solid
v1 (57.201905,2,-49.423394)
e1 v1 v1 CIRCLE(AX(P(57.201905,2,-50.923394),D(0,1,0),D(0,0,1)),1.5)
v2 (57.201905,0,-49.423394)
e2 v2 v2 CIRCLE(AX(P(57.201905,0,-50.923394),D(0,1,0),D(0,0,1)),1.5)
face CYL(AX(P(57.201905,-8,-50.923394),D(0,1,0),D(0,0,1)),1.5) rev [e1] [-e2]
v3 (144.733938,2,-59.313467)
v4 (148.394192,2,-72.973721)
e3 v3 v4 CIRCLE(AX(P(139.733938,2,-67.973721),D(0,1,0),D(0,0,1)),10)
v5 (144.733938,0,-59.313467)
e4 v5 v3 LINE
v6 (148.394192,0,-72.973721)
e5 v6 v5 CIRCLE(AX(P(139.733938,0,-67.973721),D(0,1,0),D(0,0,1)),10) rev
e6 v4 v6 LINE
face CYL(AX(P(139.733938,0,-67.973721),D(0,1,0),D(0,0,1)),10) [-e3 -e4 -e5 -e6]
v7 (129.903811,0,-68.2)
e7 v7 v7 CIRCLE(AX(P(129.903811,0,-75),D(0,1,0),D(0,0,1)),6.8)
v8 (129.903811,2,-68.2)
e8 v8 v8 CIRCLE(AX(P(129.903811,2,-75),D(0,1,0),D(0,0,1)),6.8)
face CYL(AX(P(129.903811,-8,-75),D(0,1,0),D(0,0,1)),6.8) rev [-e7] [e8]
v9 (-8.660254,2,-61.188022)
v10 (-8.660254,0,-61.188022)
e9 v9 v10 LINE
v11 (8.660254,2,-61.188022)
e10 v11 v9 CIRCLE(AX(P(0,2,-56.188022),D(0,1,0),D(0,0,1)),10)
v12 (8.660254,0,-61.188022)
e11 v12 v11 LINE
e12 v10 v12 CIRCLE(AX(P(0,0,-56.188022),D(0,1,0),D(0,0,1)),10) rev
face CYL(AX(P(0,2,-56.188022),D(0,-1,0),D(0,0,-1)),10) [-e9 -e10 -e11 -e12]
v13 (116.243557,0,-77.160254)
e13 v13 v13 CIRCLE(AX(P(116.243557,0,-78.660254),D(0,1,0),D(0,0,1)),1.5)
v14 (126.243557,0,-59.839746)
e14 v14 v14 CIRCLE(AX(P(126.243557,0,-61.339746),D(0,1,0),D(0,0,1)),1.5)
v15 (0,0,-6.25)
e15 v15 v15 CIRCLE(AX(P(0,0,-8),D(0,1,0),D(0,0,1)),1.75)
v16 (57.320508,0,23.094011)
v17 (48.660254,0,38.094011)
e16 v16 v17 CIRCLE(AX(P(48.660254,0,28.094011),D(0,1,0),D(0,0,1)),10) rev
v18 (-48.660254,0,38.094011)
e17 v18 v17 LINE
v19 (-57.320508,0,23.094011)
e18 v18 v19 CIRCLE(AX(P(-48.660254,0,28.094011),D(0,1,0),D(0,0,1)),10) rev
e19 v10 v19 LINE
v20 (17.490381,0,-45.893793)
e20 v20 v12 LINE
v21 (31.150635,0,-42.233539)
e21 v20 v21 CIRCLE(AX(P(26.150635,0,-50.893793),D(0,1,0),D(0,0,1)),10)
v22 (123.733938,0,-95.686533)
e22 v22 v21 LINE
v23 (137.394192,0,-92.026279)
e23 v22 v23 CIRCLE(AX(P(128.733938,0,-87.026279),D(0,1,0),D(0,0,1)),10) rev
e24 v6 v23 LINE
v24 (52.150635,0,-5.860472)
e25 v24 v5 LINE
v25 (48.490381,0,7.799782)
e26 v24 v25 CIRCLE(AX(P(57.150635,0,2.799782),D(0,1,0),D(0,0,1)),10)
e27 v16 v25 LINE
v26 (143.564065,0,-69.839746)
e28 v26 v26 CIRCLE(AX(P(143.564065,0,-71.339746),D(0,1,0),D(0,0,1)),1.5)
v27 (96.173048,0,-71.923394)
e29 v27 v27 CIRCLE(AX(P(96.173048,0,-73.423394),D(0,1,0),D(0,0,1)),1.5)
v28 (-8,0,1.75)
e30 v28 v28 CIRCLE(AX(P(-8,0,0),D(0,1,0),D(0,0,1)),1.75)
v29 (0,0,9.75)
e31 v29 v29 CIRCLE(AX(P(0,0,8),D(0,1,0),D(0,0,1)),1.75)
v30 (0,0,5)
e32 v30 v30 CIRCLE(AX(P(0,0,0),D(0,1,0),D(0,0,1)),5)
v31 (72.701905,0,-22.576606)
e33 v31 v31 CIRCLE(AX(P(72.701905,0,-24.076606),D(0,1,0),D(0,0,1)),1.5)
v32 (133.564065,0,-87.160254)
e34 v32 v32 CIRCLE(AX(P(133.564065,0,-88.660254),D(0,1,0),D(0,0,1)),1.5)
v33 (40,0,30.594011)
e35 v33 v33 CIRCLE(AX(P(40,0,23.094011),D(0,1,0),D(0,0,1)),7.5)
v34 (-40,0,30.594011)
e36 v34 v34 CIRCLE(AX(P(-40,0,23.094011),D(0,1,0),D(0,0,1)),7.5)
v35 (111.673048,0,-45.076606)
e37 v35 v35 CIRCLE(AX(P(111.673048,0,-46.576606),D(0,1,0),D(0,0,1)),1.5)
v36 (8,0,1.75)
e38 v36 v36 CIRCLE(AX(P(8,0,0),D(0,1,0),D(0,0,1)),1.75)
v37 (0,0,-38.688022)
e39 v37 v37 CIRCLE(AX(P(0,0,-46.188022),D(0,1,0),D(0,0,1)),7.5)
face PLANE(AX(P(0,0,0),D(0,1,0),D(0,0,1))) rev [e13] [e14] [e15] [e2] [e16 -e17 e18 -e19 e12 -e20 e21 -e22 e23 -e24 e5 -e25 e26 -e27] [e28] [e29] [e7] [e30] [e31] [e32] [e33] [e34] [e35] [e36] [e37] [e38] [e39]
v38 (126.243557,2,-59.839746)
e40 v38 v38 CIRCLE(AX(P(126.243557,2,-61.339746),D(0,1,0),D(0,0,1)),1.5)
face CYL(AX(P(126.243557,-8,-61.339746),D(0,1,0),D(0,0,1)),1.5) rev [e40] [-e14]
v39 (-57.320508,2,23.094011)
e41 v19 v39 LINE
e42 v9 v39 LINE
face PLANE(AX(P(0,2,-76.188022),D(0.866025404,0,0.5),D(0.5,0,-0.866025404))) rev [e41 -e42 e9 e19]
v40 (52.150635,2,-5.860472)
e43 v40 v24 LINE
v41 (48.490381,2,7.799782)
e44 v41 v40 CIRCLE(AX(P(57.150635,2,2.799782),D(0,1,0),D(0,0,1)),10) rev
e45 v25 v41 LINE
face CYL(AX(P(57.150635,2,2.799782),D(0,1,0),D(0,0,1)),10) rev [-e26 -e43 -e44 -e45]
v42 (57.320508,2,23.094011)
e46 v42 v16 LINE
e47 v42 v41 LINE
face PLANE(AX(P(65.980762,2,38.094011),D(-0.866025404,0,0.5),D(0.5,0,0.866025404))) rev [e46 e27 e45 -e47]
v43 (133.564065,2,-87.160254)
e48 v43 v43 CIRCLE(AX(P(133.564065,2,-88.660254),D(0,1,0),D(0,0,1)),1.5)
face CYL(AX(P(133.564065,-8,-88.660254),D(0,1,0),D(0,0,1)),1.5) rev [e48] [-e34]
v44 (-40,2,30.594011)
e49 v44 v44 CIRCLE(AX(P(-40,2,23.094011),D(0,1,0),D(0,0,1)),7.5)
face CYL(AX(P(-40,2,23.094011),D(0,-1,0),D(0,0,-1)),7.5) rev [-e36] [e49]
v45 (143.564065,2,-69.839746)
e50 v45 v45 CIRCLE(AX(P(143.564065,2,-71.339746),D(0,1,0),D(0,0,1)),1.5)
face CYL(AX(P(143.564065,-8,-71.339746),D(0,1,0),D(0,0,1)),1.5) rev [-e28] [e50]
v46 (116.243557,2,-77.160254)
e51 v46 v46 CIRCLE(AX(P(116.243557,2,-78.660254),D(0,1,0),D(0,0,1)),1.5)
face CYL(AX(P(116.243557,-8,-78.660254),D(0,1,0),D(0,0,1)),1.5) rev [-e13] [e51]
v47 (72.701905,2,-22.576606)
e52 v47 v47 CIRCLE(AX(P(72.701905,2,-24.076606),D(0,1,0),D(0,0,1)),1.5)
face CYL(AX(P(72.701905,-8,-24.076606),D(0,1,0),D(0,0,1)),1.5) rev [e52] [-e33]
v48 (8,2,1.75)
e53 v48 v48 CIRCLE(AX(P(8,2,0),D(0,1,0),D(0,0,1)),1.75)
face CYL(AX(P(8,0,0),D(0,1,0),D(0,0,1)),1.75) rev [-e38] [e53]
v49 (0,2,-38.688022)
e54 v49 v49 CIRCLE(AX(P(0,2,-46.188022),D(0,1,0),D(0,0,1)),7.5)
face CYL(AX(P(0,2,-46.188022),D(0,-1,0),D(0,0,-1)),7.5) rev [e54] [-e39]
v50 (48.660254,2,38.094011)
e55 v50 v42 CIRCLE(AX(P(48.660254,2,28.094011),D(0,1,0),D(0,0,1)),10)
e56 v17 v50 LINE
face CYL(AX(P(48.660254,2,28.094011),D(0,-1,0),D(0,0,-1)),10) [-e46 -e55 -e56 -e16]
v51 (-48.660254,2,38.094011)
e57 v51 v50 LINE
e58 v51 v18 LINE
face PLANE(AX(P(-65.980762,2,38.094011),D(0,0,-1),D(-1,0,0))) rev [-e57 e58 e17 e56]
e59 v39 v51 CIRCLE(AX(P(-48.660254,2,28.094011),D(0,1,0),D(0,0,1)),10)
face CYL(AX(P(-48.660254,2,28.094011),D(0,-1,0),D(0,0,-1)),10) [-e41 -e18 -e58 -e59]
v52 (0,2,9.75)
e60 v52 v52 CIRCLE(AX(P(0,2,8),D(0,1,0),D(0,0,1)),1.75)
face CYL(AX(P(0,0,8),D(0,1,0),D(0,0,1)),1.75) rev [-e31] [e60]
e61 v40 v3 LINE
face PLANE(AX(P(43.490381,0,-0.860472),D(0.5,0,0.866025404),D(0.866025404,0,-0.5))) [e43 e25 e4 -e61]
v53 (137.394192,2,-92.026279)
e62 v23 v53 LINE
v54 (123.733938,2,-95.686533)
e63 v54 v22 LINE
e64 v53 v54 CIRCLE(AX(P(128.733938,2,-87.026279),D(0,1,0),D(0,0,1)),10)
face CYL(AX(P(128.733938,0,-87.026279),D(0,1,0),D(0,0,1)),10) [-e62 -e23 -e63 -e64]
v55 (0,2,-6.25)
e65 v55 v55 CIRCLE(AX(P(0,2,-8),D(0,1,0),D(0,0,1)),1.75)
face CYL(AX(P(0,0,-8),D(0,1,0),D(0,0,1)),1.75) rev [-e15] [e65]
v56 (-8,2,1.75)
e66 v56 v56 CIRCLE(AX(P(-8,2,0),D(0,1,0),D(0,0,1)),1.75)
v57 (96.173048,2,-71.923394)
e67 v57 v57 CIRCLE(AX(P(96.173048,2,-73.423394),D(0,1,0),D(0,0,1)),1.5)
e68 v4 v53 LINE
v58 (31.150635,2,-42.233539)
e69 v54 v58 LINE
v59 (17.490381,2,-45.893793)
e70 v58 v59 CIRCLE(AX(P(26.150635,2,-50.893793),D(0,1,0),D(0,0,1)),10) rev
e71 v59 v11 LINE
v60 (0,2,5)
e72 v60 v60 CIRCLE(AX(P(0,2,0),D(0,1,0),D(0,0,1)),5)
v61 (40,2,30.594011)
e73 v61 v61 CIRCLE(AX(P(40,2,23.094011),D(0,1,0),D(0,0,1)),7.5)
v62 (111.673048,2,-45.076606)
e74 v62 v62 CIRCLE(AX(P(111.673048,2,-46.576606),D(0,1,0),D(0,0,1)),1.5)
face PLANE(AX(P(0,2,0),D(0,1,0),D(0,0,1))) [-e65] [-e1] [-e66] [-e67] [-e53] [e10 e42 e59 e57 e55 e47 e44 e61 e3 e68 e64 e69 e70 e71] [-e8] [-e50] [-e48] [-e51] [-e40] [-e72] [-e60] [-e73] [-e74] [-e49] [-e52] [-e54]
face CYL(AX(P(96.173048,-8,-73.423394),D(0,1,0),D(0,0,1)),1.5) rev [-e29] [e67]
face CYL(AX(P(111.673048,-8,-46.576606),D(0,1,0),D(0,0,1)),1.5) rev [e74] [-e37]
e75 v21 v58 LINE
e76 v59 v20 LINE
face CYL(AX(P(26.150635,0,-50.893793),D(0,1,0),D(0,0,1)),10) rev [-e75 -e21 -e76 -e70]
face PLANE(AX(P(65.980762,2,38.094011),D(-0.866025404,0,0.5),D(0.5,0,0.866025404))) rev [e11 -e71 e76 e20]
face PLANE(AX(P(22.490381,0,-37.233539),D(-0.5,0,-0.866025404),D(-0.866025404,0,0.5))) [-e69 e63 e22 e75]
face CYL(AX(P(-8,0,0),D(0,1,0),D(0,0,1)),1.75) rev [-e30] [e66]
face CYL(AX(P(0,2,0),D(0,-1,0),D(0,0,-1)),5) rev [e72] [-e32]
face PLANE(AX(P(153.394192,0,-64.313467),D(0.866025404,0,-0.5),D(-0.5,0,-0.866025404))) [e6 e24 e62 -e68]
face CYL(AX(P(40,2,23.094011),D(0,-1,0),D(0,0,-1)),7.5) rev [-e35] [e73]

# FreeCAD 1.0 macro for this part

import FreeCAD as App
import Part
import Sketcher
from FreeCAD import Vector
Q = App.Units.Quantity


def edges_at(feature, points):
    """Names of the edges that pass closest to the given points."""
    edges = feature.Shape.Edges
    near = lambda p: min(range(len(edges)), key=lambda i: edges[i].distToShape(Part.Vertex(*p))[0])
    return sorted({f"Edge{near(p) + 1}" for p in points})

doc = App.newDocument("Part")
body = doc.addObject("PartDesign::Body", "Body")

sketch1 = body.newObject("Sketcher::SketchObject", "Sketch")
sketch1.AttachmentSupport = (doc.getObject("XZ_Plane"), [""])
sketch1.MapMode = "FlatFace"
sketch1.addGeometry([
    Part.LineSegment(Vector(0, -76.188022, 0), Vector(-65.980762, 38.094011, 0)),
    Part.LineSegment(Vector(-65.980762, 38.094011, 0), Vector(65.980762, 38.094011, 0)),
    Part.LineSegment(Vector(65.980762, 38.094011, 0), Vector(0, -76.188022, 0)),
    Part.Circle(Vector(-40, 23.094011, 0), Vector(0, 0, 1), 7.5),
    Part.Circle(Vector(40, 23.094011, 0), Vector(0, 0, 1), 7.5),
    Part.Circle(Vector(0, 0, 0), Vector(0, 0, 1), 5),
    Part.Circle(Vector(0, -46.188022, 0), Vector(0, 0, 1), 7.5),
], False)
sketch1.addConstraint([
    Sketcher.Constraint("Coincident", 0, 2, 1, 1),
    Sketcher.Constraint("Coincident", 1, 2, 2, 1),
    Sketcher.Constraint("Coincident", 2, 2, 0, 1),
    Sketcher.Constraint("Horizontal", 1),
    Sketcher.Constraint("Coincident", 5, 3, -1, 1),
    Sketcher.Constraint("Equal", 3, 4),
    Sketcher.Constraint("Equal", 4, 6),
    Sketcher.Constraint("Symmetric", 3, 3, 4, 3, -2),
    Sketcher.Constraint("PointOnObject", 6, 3, -2),
    Sketcher.Constraint("PointOnObject", 2, 2, -2),
    Sketcher.Constraint("Equal", 0, 2),
    Sketcher.Constraint("Diameter", 3, 15.0),
    Sketcher.Constraint("Diameter", 5, 10.0),
    Sketcher.Constraint("Angle", 0, Q("120 deg")),
    Sketcher.Constraint("DistanceX", 3, 3, -1, 1, 40.0),
    Sketcher.Constraint("DistanceY", 3, 3, 0, 2, 15.0),
    Sketcher.Constraint("DistanceY", 2, 2, 6, 3, 30.0),
    Sketcher.Constraint("DistanceX", 1, 1, 1, 2, 131.961524),
    Sketcher.Constraint("DistanceY", -1, 1, 3, 3, 23.094011),
])
pad1 = body.newObject("PartDesign::Pad", "Pad")
pad1.Profile = sketch1
pad1.Length = 2
pad1.Reversed = True

sketch2 = body.newObject("Sketcher::SketchObject", "Sketch001")
sketch2.AttachmentSupport = (doc.getObject("XZ_Plane"), [""])
sketch2.MapMode = "FlatFace"
sketch2.AttachmentOffset = App.Placement(Vector(0, 0, -2), App.Rotation())
sketch2.addGeometry([
    Part.LineSegment(Vector(22.490381, -37.233539, 0), Vector(43.490381, -0.860472, 0)),
    Part.LineSegment(Vector(43.490381, -0.860472, 0), Vector(153.394192, -64.313467, 0)),
    Part.LineSegment(Vector(153.394192, -64.313467, 0), Vector(132.394192, -100.686533, 0)),
    Part.LineSegment(Vector(132.394192, -100.686533, 0), Vector(22.490381, -37.233539, 0)),
], False)
sketch2.addConstraint([
    Sketcher.Constraint("Coincident", 0, 2, 1, 1),
    Sketcher.Constraint("Coincident", 1, 2, 2, 1),
    Sketcher.Constraint("Coincident", 2, 2, 3, 1),
    Sketcher.Constraint("Coincident", 3, 2, 0, 1),
    Sketcher.Constraint("Perpendicular", 0, 1),
    Sketcher.Constraint("Perpendicular", 1, 2),
    Sketcher.Constraint("Perpendicular", 2, 3),
    Sketcher.Constraint("Angle", 0, Q("60 deg")),
    Sketcher.Constraint("Distance", 0, 42.0),
    Sketcher.Constraint("Distance", 1, 126.905989),
    Sketcher.Constraint("DistanceX", -1, 1, 0, 2, 43.490381),
    Sketcher.Constraint("DistanceY", 0, 2, -1, 1, 0.860472),
])
pad2 = body.newObject("PartDesign::Pad", "Pad001")
pad2.Profile = sketch2
pad2.Length = 2
doc.recompute()

fillet = body.newObject("PartDesign::Fillet", "Fillet")
fillet.Base = (pad2, edges_at(pad2, [
    (153.394, 1, -64.313),
    (43.49, 1, -0.86),
    (22.49, 1, -37.234),
    (132.394, 1, -100.687),
    (65.981, 1, 38.094),
    (-65.981, 1, 38.094),
    (0, 1, -76.188),
]))
fillet.Radius = 10

sketch3 = body.newObject("Sketcher::SketchObject", "Sketch002")
sketch3.AttachmentSupport = (doc.getObject("XZ_Plane"), [""])
sketch3.MapMode = "FlatFace"
sketch3.AttachmentOffset = App.Placement(Vector(0, 0, -2), App.Rotation())
sketch3.addGeometry(Part.Circle(Vector(129.903811, -75, 0), Vector(0, 0, 1), 6.8), False)
sketch3.addConstraint([
    Sketcher.Constraint("Diameter", 0, 13.6),
    Sketcher.Constraint("DistanceY", 0, 3, -1, 1, 75.0),
    Sketcher.Constraint("DistanceX", -1, 1, 0, 3, 129.903811),
])
pocket1 = body.newObject("PartDesign::Pocket", "Pocket")
pocket1.Profile = sketch3
pocket1.Length = 10
pocket1.Reversed = True

sketch4 = body.newObject("Sketcher::SketchObject", "Sketch003")
sketch4.AttachmentSupport = (doc.getObject("XZ_Plane"), [""])
sketch4.MapMode = "FlatFace"
sketch4.AttachmentOffset = App.Placement(Vector(0, 0, -2), App.Rotation())
sketch4.addGeometry([
    Part.Circle(Vector(133.564065, -88.660254, 0), Vector(0, 0, 1), 1.5),
    Part.Circle(Vector(116.243557, -78.660254, 0), Vector(0, 0, 1), 1.5),
    Part.Circle(Vector(126.243557, -61.339746, 0), Vector(0, 0, 1), 1.5),
    Part.Circle(Vector(143.564065, -71.339746, 0), Vector(0, 0, 1), 1.5),
], False)
sketch4.addConstraint([
    Sketcher.Constraint("Equal", 0, 1),
    Sketcher.Constraint("Equal", 1, 2),
    Sketcher.Constraint("Equal", 2, 3),
    Sketcher.Constraint("Diameter", 0, 3.0),
    Sketcher.Constraint("DistanceY", 0, 3, 1, 3, 10.0),
    Sketcher.Constraint("DistanceX", 1, 3, 2, 3, 10.0),
    Sketcher.Constraint("DistanceY", 3, 3, 2, 3, 10.0),
    Sketcher.Constraint("DistanceX", 0, 3, 3, 3, 10.0),
    Sketcher.Constraint("DistanceX", 1, 3, 0, 3, 17.320508),
    Sketcher.Constraint("DistanceY", 1, 3, 2, 3, 17.320508),
    Sketcher.Constraint("DistanceX", -1, 1, 0, 3, 133.564065),
    Sketcher.Constraint("DistanceY", 0, 3, -1, 1, 88.660254),
])
pocket2 = body.newObject("PartDesign::Pocket", "Pocket001")
pocket2.Profile = sketch4
pocket2.Length = 10
pocket2.Reversed = True

sketch5 = body.newObject("Sketcher::SketchObject", "Sketch004")
sketch5.AttachmentSupport = (doc.getObject("XZ_Plane"), [""])
sketch5.MapMode = "FlatFace"
sketch5.AttachmentOffset = App.Placement(Vector(0, 0, -2), App.Rotation())
sketch5.addGeometry([
    Part.Circle(Vector(96.173048, -73.423394, 0), Vector(0, 0, 1), 1.5),
    Part.Circle(Vector(57.201905, -50.923394, 0), Vector(0, 0, 1), 1.5),
    Part.Circle(Vector(111.673048, -46.576606, 0), Vector(0, 0, 1), 1.5),
    Part.Circle(Vector(72.701905, -24.076606, 0), Vector(0, 0, 1), 1.5),
], False)
sketch5.addConstraint([
    Sketcher.Constraint("Equal", 0, 1),
    Sketcher.Constraint("Equal", 1, 2),
    Sketcher.Constraint("Equal", 2, 3),
    Sketcher.Constraint("Diameter", 0, 3.0),
    Sketcher.Constraint("DistanceY", 0, 3, 1, 3, 22.5),
    Sketcher.Constraint("DistanceX", 0, 3, 2, 3, 15.5),
    Sketcher.Constraint("DistanceX", 1, 3, 3, 3, 15.5),
    Sketcher.Constraint("DistanceY", 2, 3, 3, 3, 22.5),
    Sketcher.Constraint("DistanceX", -1, 1, 0, 3, 96.173048),
    Sketcher.Constraint("DistanceY", 0, 3, -1, 1, 73.423394),
    Sketcher.Constraint("DistanceX", -1, 1, 1, 3, 57.201905),
    Sketcher.Constraint("DistanceY", 2, 3, -1, 1, 46.576606),
])
pocket3 = body.newObject("PartDesign::Pocket", "Pocket002")
pocket3.Profile = sketch5
pocket3.Length = 10
pocket3.Reversed = True

sketch6 = body.newObject("Sketcher::SketchObject", "Sketch005")
sketch6.AttachmentSupport = (doc.getObject("XZ_Plane"), [""])
sketch6.MapMode = "FlatFace"
sketch6.AttachmentOffset = App.Placement(Vector(0, 0, -2), App.Rotation())
sketch6.addGeometry([
    Part.Circle(Vector(0, -8, 0), Vector(0, 0, 1), 1.75),
    Part.Circle(Vector(8, 0, 0), Vector(0, 0, 1), 1.75),
    Part.Circle(Vector(0, 8, 0), Vector(0, 0, 1), 1.75),
    Part.Circle(Vector(-8, 0, 0), Vector(0, 0, 1), 1.75),
], False)
sketch6.addConstraint([
    Sketcher.Constraint("Equal", 0, 1),
    Sketcher.Constraint("Equal", 1, 2),
    Sketcher.Constraint("Equal", 2, 3),
    Sketcher.Constraint("Symmetric", 0, 3, 2, 3, -1, 1),
    Sketcher.Constraint("Symmetric", 1, 3, 3, 3, -1, 1),
    Sketcher.Constraint("PointOnObject", 0, 3, -2),
    Sketcher.Constraint("PointOnObject", 1, 3, -1),
    Sketcher.Constraint("Diameter", 0, 3.5),
    Sketcher.Constraint("DistanceY", 0, 3, -1, 1, 8.0),
    Sketcher.Constraint("DistanceX", -1, 1, 1, 3, 8.0),
])
pocket4 = body.newObject("PartDesign::Pocket", "Pocket003")
pocket4.Profile = sketch6
pocket4.Type = "ThroughAll"
pocket4.Reversed = True

doc.recompute()
